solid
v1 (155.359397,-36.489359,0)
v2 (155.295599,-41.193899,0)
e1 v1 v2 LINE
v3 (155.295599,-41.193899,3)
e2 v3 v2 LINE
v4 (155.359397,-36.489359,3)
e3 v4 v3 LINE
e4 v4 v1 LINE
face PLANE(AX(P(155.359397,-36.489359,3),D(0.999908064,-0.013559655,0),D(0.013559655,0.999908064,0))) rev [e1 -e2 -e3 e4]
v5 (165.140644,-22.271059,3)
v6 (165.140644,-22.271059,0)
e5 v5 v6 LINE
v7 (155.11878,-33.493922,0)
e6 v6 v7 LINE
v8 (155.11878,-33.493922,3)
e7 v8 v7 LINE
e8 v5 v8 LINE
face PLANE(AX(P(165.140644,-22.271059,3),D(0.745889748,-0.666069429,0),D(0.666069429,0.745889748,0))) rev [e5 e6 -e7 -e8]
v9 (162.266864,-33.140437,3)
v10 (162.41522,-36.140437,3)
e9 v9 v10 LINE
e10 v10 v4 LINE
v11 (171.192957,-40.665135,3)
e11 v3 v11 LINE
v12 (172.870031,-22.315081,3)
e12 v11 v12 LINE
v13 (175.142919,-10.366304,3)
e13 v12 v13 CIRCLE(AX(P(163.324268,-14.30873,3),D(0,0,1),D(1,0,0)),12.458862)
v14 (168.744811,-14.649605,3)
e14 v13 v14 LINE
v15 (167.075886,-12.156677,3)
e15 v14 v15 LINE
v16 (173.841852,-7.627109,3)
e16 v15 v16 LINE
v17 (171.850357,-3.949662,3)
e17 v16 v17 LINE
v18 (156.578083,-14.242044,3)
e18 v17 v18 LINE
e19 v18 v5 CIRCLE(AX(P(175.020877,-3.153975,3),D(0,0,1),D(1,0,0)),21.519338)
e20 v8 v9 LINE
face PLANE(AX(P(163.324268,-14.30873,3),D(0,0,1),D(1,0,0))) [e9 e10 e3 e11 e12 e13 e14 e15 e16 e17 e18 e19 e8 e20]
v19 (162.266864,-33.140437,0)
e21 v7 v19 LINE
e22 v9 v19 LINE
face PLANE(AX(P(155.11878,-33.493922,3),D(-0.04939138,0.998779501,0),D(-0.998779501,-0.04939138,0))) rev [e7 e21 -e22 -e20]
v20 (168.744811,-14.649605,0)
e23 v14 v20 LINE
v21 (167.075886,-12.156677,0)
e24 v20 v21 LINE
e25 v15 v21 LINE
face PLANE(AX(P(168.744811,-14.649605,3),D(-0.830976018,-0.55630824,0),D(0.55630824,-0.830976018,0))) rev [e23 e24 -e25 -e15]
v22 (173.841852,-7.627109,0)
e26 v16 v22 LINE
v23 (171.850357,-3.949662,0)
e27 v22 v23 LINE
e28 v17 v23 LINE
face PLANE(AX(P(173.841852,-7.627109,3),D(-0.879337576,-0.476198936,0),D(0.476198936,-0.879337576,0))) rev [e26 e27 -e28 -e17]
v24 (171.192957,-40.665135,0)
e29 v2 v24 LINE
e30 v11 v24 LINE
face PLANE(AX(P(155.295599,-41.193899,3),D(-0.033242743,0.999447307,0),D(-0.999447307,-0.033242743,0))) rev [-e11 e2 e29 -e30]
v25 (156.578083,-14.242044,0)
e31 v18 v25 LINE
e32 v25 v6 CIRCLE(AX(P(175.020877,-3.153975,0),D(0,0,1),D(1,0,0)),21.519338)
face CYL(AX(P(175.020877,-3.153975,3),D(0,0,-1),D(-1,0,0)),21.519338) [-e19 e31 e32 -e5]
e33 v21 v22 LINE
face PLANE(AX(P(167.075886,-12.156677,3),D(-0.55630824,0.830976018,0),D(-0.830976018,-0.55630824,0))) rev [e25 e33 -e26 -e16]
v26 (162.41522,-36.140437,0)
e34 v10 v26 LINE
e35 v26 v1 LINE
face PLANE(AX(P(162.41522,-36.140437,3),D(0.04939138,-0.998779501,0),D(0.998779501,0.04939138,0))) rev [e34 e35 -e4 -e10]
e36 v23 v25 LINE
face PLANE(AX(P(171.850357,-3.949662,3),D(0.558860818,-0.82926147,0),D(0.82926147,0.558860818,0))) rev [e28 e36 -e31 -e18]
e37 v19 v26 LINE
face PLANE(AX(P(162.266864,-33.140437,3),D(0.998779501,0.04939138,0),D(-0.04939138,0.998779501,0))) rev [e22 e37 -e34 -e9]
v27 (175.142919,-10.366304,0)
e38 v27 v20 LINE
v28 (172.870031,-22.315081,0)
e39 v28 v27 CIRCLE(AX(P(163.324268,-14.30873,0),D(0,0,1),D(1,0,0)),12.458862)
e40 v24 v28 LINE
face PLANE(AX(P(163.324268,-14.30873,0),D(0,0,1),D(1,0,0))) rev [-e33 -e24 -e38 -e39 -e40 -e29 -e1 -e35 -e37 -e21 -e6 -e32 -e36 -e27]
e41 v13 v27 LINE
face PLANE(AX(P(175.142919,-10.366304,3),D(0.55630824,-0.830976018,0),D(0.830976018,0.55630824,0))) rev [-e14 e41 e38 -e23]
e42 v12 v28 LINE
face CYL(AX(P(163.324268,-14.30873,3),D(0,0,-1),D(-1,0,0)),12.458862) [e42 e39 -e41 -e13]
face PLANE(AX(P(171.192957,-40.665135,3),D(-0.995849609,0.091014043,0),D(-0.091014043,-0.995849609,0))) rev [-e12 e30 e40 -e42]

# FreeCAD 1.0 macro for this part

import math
import FreeCAD as App
import Part
import Sketcher

V = App.Vector
Q = App.Units.Quantity

doc = App.newDocument("Part")
params = doc.addObject("Spreadsheet::Sheet", "Params")
for row, (alias, value) in enumerate([
    ("sketch1_length", "3 mm"),
    ("pad1_length", "3 mm"),
], start=1):
    params.set(f"A{row}", alias)
    params.set(f"B{row}", "=" + value)
    params.setAlias(f"B{row}", alias)

body = doc.addObject("PartDesign::Body", "Body")

sketch1 = body.newObject("Sketcher::SketchObject", "Sketch")
sketch1.AttachmentSupport = (doc.getObject("XY_Plane"), [""])
sketch1.MapMode = "FlatFace"
sketch1.addGeometry([
    Part.LineSegment(V(171.2, -40.7, 0), V(172.9, -22.3, 0)),
    Part.ArcOfCircle(Part.Circle(V(163.3, -14.3, 0), V(0, 0, 1), 12.5), math.radians(-40), math.radians(18)),
    Part.LineSegment(V(175.1, -10.4, 0), V(168.7, -14.6, 0)),
    Part.LineSegment(V(168.7, -14.6, 0), V(167.1, -12.2, 0)),
    Part.LineSegment(V(167.1, -12.2, 0), V(173.8, -7.6, 0)),
    Part.LineSegment(V(173.8, -7.6, 0), V(171.9, -3.9, 0)),
    Part.LineSegment(V(171.9, -3.9, 0), V(156.6, -14.2, 0)),
    Part.ArcOfCircle(Part.Circle(V(175, -3.2, 0), V(0, 0, 1), 21.5), math.radians(-149), math.radians(-117)),
    Part.LineSegment(V(165.1, -22.3, 0), V(155.1, -33.5, 0)),
    Part.LineSegment(V(155.1, -33.5, 0), V(162.3, -33.1, 0)),
    Part.LineSegment(V(162.3, -33.1, 0), V(162.4, -36.1, 0)),
    Part.LineSegment(V(162.4, -36.1, 0), V(155.4, -36.5, 0)),
    Part.LineSegment(V(155.4, -36.5, 0), V(155.3, -41.2, 0)),
    Part.LineSegment(V(155.3, -41.2, 0), V(171.2, -40.7, 0)),
], False)
sketch1.addConstraint([
    Sketcher.Constraint("Coincident", 0, 2, 1, 1),
    Sketcher.Constraint("Coincident", 1, 2, 2, 1),
    Sketcher.Constraint("Coincident", 2, 2, 3, 1),
    Sketcher.Constraint("Coincident", 3, 2, 4, 1),
    Sketcher.Constraint("Coincident", 4, 2, 5, 1),
    Sketcher.Constraint("Coincident", 5, 2, 6, 1),
    Sketcher.Constraint("Coincident", 6, 2, 7, 1),
    Sketcher.Constraint("Coincident", 7, 2, 8, 1),
    Sketcher.Constraint("Coincident", 8, 2, 9, 1),
    Sketcher.Constraint("Coincident", 9, 2, 10, 1),
    Sketcher.Constraint("Coincident", 10, 2, 11, 1),
    Sketcher.Constraint("Coincident", 11, 2, 12, 1),
    Sketcher.Constraint("Coincident", 12, 2, 13, 1),
    Sketcher.Constraint("Coincident", 13, 2, 0, 1),
    Sketcher.Constraint("Perpendicular", 2, 3),
    Sketcher.Constraint("Perpendicular", 3, 4),
    Sketcher.Constraint("Perpendicular", 9, 10),
    Sketcher.Constraint("Perpendicular", 10, 11),
    Sketcher.Constraint("Distance", 3, Q("3 mm")),
    Sketcher.Constraint("DistanceY", 10, 2, 9, 2, Q("3 mm")),
    Sketcher.Constraint("Radius", 1, Q("12.458862 mm")),
    Sketcher.Constraint("Radius", 7, Q("21.519338 mm")),
    Sketcher.Constraint("DistanceX", -1, 1, 12, 2, Q("155.295599 mm")),
    Sketcher.Constraint("DistanceY", 12, 2, -1, 1, Q("41.193899 mm")),
    Sketcher.Constraint("DistanceY", 2, 2, 1, 2, Q("4.283301 mm")),
    Sketcher.Constraint("DistanceY", 11, 2, 7, 2, Q("14.2183 mm")),
    Sketcher.Constraint("DistanceY", 13, 2, 10, 2, Q("4.524698 mm")),
    Sketcher.Constraint("Distance", 0, Q("18.426531 mm")),
    Sketcher.Constraint("Distance", 2, Q("7.69951 mm")),
    Sketcher.Constraint("Distance", 4, Q("8.142191 mm")),
    Sketcher.Constraint("Distance", 9, Q("7.156819 mm")),
    Sketcher.Constraint("Distance", 13, Q("15.90615 mm")),
    Sketcher.Constraint("DistanceX", -1, 1, 1, 3, Q("163.324268 mm")),
    Sketcher.Constraint("DistanceY", 1, 3, -1, 1, Q("14.30873 mm")),
    Sketcher.Constraint("DistanceX", -1, 1, 0, 2, Q("172.870031 mm")),
    Sketcher.Constraint("DistanceX", -1, 1, 1, 2, Q("175.142919 mm")),
    Sketcher.Constraint("DistanceY", 5, 2, -1, 1, Q("3.949662 mm")),
    Sketcher.Constraint("DistanceY", 7, 2, -1, 1, Q("22.271059 mm")),
    Sketcher.Constraint("DistanceX", -1, 1, 8, 2, Q("155.11878 mm")),
    Sketcher.Constraint("DistanceY", 8, 2, -1, 1, Q("33.493922 mm")),
    Sketcher.Constraint("DistanceX", 1, 3, 7, 3, Q("11.696608 mm")),
    Sketcher.Constraint("DistanceY", 1, 2, 7, 3, Q("7.212329 mm")),
    Sketcher.Constraint("DistanceX", 5, 2, 7, 3, Q("3.170519 mm")),
    Sketcher.Constraint("DistanceX", 6, 2, 2, 2, Q("12.166728 mm")),
])
sketch1.setExpression("Constraints[18]", "Params.sketch1_length")
pad1 = body.newObject("PartDesign::Pad", "Pad")
pad1.Profile = sketch1
pad1.setExpression("Length", "Params.pad1_length")

doc.recompute()
